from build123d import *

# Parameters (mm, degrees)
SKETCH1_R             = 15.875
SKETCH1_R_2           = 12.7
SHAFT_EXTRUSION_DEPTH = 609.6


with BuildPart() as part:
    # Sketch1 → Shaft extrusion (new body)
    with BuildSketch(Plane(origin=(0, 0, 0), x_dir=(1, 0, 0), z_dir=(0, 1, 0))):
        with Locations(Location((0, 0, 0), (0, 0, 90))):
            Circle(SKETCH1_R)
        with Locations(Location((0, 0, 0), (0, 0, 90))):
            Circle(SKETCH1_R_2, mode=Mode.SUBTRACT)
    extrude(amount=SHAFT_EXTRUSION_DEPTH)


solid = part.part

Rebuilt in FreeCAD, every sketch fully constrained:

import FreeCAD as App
import Part
import Sketcher
Q = App.Units.Quantity

doc = App.newDocument("Part")
body = doc.addObject("PartDesign::Body", "Body")

# Sketch on XZ plane
sketch1 = body.newObject("Sketcher::SketchObject", "Sketch")
sketch1.AttachmentSupport = (doc.getObject("XZ_Plane"), [""])
sketch1.MapMode = "FlatFace"
sketch1.addGeometry([
    Part.Circle(App.Vector(0, 0, 0), App.Vector(0, 0, 1), 15.875),
    Part.Circle(App.Vector(0, 0, 0), App.Vector(0, 0, 1), 12.7),
], False)
sketch1.addConstraint([
    Sketcher.Constraint("Coincident", 0, 3, -1, 1),
    Sketcher.Constraint("Coincident", 1, 3, -1, 1),
    Sketcher.Constraint("Diameter", 1, Q("1 in")),
    Sketcher.Constraint("Diameter", 0, Q("1.25 in")),
])
pad1 = body.newObject("PartDesign::Pad", "Pad")
pad1.Profile = sketch1
pad1.Length = Q("24 in")
pad1.Reversed = True

doc.recompute()
